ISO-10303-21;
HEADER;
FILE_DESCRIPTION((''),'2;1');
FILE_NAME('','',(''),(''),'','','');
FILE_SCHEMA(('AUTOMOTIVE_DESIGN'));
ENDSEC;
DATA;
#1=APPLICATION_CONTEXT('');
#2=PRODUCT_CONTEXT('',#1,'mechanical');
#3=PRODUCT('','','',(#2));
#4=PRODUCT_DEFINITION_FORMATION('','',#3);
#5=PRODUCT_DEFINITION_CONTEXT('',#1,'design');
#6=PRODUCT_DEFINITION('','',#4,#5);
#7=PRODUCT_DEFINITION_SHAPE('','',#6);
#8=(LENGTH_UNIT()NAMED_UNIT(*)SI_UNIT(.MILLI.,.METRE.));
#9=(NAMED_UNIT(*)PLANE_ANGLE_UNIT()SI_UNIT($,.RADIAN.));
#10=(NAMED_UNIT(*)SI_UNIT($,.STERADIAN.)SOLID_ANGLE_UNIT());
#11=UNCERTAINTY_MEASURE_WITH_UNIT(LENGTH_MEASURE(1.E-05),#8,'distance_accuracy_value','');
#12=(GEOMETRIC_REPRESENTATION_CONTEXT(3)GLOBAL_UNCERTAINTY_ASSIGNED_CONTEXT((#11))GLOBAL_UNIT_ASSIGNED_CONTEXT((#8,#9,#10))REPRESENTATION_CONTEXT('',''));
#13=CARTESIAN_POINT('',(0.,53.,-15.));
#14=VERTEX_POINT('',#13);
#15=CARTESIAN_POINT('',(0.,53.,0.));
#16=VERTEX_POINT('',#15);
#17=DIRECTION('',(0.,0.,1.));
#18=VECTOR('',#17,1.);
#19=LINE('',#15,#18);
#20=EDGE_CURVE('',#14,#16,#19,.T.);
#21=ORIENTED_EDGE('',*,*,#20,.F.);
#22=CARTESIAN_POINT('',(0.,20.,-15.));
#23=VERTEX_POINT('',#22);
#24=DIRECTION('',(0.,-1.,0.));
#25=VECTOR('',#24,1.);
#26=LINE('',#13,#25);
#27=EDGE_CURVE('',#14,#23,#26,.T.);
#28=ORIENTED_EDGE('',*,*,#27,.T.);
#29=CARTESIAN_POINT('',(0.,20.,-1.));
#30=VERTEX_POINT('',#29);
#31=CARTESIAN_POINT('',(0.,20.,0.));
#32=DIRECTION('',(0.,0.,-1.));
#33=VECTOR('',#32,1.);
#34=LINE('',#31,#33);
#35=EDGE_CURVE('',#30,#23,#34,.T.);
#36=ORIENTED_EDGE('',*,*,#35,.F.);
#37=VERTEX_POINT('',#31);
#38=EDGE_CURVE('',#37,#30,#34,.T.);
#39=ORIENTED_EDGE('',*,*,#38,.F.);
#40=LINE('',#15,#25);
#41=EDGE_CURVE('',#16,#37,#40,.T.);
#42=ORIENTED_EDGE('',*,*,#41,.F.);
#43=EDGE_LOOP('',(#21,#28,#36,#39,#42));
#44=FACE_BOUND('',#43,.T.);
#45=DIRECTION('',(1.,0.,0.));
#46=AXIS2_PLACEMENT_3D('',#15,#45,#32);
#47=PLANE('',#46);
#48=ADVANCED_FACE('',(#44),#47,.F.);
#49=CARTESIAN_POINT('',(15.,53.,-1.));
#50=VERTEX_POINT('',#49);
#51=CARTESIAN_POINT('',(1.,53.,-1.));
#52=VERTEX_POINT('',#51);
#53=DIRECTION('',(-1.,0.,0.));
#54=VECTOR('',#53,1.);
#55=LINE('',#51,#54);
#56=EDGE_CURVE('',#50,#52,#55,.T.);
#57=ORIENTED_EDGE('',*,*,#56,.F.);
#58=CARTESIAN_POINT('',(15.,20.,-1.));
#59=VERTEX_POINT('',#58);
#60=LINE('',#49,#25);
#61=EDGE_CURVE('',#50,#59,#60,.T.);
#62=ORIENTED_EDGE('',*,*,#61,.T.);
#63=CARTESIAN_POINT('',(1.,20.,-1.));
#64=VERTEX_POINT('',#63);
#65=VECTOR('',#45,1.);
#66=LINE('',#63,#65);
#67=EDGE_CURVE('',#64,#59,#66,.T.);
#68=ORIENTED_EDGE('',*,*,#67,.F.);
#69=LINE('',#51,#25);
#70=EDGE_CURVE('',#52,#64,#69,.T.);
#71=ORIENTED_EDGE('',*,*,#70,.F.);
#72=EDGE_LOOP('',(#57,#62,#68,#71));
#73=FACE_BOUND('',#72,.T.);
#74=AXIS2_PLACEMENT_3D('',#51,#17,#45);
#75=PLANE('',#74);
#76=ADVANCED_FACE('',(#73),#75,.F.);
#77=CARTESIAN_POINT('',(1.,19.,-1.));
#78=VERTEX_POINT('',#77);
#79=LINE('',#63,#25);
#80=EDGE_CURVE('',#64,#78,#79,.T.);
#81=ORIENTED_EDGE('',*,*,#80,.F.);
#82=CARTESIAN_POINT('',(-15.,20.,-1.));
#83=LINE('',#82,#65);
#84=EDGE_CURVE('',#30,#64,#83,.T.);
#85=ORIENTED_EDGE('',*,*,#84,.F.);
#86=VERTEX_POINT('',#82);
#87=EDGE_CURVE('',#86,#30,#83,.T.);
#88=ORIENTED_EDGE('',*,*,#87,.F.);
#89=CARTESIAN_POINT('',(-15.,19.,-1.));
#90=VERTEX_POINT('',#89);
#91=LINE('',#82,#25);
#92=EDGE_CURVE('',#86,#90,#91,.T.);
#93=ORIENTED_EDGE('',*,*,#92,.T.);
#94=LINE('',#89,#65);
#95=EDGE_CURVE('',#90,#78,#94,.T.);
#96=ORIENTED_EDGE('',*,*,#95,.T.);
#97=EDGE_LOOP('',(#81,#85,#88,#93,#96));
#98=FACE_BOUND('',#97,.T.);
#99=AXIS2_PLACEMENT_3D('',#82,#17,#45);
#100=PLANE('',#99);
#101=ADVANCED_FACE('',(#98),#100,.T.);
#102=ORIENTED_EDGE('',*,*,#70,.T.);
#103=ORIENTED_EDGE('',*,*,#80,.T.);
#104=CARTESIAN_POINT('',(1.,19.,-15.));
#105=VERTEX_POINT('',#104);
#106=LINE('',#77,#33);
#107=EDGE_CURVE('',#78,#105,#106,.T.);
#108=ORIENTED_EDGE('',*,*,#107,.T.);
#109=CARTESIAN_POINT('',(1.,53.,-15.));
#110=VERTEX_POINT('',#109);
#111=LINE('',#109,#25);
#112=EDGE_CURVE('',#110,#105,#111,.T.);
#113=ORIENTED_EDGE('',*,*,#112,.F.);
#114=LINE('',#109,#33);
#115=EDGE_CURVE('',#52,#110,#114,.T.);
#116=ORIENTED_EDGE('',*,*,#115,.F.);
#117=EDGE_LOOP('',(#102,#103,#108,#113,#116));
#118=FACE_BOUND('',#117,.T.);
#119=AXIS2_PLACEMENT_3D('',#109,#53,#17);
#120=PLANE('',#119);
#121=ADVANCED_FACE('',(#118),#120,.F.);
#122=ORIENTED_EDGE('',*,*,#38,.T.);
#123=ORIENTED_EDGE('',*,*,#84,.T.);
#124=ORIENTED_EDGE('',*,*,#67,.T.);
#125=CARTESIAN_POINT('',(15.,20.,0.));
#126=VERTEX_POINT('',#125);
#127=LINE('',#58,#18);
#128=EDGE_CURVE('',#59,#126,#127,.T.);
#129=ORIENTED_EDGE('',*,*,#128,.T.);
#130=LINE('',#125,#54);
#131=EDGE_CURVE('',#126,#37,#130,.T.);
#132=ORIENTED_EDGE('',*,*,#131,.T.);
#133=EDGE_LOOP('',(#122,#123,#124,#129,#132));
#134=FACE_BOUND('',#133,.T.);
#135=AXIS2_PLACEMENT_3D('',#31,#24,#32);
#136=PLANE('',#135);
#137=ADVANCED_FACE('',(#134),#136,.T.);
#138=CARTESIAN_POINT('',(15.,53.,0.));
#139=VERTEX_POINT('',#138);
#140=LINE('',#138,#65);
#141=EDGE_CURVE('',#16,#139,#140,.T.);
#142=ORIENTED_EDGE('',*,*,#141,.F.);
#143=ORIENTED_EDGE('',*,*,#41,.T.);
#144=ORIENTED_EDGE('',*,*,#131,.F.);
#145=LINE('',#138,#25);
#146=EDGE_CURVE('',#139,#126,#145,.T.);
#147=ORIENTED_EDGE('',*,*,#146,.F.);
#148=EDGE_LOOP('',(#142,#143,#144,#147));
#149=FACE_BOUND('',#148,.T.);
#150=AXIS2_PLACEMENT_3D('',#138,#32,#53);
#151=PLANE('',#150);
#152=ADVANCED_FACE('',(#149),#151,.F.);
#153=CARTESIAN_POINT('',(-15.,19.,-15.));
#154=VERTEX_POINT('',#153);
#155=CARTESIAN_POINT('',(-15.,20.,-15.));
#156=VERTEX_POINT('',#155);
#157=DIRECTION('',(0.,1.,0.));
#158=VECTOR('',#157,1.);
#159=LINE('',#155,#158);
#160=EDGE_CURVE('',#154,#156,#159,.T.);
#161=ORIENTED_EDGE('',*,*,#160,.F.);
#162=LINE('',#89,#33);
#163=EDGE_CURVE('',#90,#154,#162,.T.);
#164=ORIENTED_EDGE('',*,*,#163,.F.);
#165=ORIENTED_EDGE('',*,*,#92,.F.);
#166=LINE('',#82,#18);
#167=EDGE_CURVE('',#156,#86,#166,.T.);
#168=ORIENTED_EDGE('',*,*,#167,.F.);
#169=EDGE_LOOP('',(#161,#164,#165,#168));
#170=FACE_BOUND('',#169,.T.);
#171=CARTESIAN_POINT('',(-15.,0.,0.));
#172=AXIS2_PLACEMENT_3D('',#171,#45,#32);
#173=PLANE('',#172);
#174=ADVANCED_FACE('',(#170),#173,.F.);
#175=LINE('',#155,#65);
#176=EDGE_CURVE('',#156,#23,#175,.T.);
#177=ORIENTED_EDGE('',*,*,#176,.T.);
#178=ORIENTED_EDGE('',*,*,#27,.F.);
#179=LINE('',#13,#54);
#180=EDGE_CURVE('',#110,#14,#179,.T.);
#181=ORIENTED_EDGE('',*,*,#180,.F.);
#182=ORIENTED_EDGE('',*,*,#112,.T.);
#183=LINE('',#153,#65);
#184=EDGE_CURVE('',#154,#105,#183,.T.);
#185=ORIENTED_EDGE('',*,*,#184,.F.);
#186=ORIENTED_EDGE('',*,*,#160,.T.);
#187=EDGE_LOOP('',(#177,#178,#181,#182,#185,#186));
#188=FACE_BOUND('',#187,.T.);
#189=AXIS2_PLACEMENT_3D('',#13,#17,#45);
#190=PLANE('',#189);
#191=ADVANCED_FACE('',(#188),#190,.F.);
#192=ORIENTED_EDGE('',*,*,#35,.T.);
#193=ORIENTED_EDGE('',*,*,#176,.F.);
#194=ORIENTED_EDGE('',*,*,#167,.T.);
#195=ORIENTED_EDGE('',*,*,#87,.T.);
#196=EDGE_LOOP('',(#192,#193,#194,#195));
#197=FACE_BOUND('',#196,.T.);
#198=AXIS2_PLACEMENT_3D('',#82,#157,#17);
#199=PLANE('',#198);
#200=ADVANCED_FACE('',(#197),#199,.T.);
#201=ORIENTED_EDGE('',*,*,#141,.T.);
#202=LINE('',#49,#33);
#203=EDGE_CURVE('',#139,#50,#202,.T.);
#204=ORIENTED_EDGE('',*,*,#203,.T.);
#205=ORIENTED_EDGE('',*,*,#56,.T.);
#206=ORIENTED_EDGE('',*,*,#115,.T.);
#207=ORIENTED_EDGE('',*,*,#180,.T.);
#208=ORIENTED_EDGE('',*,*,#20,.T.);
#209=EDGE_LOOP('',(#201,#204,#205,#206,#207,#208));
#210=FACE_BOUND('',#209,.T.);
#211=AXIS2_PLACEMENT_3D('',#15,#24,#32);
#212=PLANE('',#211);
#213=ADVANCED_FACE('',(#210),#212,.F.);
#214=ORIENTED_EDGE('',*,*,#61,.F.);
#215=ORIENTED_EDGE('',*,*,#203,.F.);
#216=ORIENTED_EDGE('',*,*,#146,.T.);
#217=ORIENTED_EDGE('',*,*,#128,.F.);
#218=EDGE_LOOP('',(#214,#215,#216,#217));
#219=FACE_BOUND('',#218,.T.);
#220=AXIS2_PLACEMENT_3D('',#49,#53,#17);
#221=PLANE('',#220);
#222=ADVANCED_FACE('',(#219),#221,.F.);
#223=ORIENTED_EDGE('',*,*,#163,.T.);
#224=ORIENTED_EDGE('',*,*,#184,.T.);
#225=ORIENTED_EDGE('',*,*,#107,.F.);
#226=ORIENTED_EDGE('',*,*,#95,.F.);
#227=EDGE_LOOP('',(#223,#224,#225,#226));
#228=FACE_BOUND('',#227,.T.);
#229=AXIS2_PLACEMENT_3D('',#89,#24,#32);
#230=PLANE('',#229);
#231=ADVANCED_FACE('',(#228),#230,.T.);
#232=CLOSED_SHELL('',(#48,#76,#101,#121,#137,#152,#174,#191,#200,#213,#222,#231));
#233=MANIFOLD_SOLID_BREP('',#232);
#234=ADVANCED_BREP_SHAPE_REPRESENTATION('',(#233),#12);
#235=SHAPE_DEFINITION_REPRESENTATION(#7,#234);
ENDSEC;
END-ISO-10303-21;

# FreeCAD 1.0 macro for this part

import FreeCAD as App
import Part
import Sketcher
Q = App.Units.Quantity


def add_polygon(sketch, points):
    """Adds a closed chain of lines whose ends are joined by coincident constraints."""
    first, n = sketch.GeometryCount, len(points)
    for a, b in zip(points, points[1:] + points[:1]):
        sketch.addGeometry(Part.LineSegment(App.Vector(*a, 0), App.Vector(*b, 0)), False)
    for i in range(n):
        sketch.addConstraint(Sketcher.Constraint("Coincident", first + i, 2, first + (i + 1) % n, 1))

doc = App.newDocument("Part")
body = doc.addObject("PartDesign::Body", "Body")

sketch1 = body.newObject("Sketcher::SketchObject", "Sketch")
sketch1.AttachmentSupport = (doc.getObject("XZ_Plane"), [""])
sketch1.MapMode = "FlatFace"
add_polygon(sketch1, [(0, -15), (0, 0), (15, 0), (15, -1), (1, -1), (1, -15)])
sketch1.addConstraint(Sketcher.Constraint("Vertical", 0))
sketch1.addConstraint(Sketcher.Constraint("Horizontal", 1))
sketch1.addConstraint(Sketcher.Constraint("Vertical", 2))
sketch1.addConstraint(Sketcher.Constraint("Horizontal", 3))
sketch1.addConstraint(Sketcher.Constraint("Vertical", 4))
sketch1.addConstraint(Sketcher.Constraint("Horizontal", 5))
sketch1.addConstraint(Sketcher.Constraint("Coincident", 0, 2, -1, 1))
sketch1.addConstraint(Sketcher.Constraint("Equal", 1, 0))
sketch1.addConstraint(Sketcher.Constraint("Equal", 5, 2))
sketch1.addConstraint(Sketcher.Constraint("DistanceX", 1, 1, 1, 2, Q("15 mm")))
sketch1.addConstraint(Sketcher.Constraint("DistanceX", 3, 2, 3, 1, Q("14 mm")))
pad1 = body.newObject("PartDesign::Pad", "Pad")
pad1.Profile = sketch1
pad1.Length = 53
pad1.Reversed = True

sketch2 = body.newObject("Sketcher::SketchObject", "Sketch001")
sketch2.AttachmentSupport = (doc.getObject("XZ_Plane"), [""])
sketch2.MapMode = "FlatFace"
add_polygon(sketch2, [(15, 0), (0, 0), (0, -15), (1, -15), (1, -1), (15, -1)])
sketch2.addConstraint(Sketcher.Constraint("Horizontal", 0))
sketch2.addConstraint(Sketcher.Constraint("Vertical", 1))
sketch2.addConstraint(Sketcher.Constraint("Horizontal", 2))
sketch2.addConstraint(Sketcher.Constraint("Vertical", 3))
sketch2.addConstraint(Sketcher.Constraint("Horizontal", 4))
sketch2.addConstraint(Sketcher.Constraint("Vertical", 5))
sketch2.addConstraint(Sketcher.Constraint("Coincident", 0, 2, -1, 1))
sketch2.addConstraint(Sketcher.Constraint("Equal", 0, 1))
sketch2.addConstraint(Sketcher.Constraint("Equal", 4, 3))
sketch2.addConstraint(Sketcher.Constraint("DistanceX", 0, 2, 0, 1, Q("15 mm")))
sketch2.addConstraint(Sketcher.Constraint("DistanceX", 2, 1, 2, 2, Q("1 mm")))
pocket1 = body.newObject("PartDesign::Pocket", "Pocket")
pocket1.Profile = sketch2
pocket1.Length = 20

sketch3 = body.newObject("Sketcher::SketchObject", "Sketch002")
sketch3.AttachmentSupport = (doc.getObject("YZ_Plane"), [""])
sketch3.MapMode = "FlatFace"
sketch3.AttachmentOffset = App.Placement(App.Vector(0, 0, 1), App.Rotation())
add_polygon(sketch3, [(20, -1), (19, -1), (19, -15), (20, -15)])
sketch3.addConstraint(Sketcher.Constraint("Horizontal", 0))
sketch3.addConstraint(Sketcher.Constraint("Vertical", 1))
sketch3.addConstraint(Sketcher.Constraint("Horizontal", 2))
sketch3.addConstraint(Sketcher.Constraint("Vertical", 3))
sketch3.addConstraint(Sketcher.Constraint("DistanceX", 0, 2, 0, 1, Q("1 mm")))
sketch3.addConstraint(Sketcher.Constraint("DistanceY", 1, 2, 1, 1, Q("14 mm")))
sketch3.addConstraint(Sketcher.Constraint("DistanceX", -1, 1, 0, 2, Q("19 mm")))
sketch3.addConstraint(Sketcher.Constraint("DistanceY", 0, 2, -1, 1, Q("1 mm")))
pad2 = body.newObject("PartDesign::Pad", "Pad001")
pad2.Profile = sketch3
pad2.Length = 16
pad2.Reversed = True

doc.recompute()
